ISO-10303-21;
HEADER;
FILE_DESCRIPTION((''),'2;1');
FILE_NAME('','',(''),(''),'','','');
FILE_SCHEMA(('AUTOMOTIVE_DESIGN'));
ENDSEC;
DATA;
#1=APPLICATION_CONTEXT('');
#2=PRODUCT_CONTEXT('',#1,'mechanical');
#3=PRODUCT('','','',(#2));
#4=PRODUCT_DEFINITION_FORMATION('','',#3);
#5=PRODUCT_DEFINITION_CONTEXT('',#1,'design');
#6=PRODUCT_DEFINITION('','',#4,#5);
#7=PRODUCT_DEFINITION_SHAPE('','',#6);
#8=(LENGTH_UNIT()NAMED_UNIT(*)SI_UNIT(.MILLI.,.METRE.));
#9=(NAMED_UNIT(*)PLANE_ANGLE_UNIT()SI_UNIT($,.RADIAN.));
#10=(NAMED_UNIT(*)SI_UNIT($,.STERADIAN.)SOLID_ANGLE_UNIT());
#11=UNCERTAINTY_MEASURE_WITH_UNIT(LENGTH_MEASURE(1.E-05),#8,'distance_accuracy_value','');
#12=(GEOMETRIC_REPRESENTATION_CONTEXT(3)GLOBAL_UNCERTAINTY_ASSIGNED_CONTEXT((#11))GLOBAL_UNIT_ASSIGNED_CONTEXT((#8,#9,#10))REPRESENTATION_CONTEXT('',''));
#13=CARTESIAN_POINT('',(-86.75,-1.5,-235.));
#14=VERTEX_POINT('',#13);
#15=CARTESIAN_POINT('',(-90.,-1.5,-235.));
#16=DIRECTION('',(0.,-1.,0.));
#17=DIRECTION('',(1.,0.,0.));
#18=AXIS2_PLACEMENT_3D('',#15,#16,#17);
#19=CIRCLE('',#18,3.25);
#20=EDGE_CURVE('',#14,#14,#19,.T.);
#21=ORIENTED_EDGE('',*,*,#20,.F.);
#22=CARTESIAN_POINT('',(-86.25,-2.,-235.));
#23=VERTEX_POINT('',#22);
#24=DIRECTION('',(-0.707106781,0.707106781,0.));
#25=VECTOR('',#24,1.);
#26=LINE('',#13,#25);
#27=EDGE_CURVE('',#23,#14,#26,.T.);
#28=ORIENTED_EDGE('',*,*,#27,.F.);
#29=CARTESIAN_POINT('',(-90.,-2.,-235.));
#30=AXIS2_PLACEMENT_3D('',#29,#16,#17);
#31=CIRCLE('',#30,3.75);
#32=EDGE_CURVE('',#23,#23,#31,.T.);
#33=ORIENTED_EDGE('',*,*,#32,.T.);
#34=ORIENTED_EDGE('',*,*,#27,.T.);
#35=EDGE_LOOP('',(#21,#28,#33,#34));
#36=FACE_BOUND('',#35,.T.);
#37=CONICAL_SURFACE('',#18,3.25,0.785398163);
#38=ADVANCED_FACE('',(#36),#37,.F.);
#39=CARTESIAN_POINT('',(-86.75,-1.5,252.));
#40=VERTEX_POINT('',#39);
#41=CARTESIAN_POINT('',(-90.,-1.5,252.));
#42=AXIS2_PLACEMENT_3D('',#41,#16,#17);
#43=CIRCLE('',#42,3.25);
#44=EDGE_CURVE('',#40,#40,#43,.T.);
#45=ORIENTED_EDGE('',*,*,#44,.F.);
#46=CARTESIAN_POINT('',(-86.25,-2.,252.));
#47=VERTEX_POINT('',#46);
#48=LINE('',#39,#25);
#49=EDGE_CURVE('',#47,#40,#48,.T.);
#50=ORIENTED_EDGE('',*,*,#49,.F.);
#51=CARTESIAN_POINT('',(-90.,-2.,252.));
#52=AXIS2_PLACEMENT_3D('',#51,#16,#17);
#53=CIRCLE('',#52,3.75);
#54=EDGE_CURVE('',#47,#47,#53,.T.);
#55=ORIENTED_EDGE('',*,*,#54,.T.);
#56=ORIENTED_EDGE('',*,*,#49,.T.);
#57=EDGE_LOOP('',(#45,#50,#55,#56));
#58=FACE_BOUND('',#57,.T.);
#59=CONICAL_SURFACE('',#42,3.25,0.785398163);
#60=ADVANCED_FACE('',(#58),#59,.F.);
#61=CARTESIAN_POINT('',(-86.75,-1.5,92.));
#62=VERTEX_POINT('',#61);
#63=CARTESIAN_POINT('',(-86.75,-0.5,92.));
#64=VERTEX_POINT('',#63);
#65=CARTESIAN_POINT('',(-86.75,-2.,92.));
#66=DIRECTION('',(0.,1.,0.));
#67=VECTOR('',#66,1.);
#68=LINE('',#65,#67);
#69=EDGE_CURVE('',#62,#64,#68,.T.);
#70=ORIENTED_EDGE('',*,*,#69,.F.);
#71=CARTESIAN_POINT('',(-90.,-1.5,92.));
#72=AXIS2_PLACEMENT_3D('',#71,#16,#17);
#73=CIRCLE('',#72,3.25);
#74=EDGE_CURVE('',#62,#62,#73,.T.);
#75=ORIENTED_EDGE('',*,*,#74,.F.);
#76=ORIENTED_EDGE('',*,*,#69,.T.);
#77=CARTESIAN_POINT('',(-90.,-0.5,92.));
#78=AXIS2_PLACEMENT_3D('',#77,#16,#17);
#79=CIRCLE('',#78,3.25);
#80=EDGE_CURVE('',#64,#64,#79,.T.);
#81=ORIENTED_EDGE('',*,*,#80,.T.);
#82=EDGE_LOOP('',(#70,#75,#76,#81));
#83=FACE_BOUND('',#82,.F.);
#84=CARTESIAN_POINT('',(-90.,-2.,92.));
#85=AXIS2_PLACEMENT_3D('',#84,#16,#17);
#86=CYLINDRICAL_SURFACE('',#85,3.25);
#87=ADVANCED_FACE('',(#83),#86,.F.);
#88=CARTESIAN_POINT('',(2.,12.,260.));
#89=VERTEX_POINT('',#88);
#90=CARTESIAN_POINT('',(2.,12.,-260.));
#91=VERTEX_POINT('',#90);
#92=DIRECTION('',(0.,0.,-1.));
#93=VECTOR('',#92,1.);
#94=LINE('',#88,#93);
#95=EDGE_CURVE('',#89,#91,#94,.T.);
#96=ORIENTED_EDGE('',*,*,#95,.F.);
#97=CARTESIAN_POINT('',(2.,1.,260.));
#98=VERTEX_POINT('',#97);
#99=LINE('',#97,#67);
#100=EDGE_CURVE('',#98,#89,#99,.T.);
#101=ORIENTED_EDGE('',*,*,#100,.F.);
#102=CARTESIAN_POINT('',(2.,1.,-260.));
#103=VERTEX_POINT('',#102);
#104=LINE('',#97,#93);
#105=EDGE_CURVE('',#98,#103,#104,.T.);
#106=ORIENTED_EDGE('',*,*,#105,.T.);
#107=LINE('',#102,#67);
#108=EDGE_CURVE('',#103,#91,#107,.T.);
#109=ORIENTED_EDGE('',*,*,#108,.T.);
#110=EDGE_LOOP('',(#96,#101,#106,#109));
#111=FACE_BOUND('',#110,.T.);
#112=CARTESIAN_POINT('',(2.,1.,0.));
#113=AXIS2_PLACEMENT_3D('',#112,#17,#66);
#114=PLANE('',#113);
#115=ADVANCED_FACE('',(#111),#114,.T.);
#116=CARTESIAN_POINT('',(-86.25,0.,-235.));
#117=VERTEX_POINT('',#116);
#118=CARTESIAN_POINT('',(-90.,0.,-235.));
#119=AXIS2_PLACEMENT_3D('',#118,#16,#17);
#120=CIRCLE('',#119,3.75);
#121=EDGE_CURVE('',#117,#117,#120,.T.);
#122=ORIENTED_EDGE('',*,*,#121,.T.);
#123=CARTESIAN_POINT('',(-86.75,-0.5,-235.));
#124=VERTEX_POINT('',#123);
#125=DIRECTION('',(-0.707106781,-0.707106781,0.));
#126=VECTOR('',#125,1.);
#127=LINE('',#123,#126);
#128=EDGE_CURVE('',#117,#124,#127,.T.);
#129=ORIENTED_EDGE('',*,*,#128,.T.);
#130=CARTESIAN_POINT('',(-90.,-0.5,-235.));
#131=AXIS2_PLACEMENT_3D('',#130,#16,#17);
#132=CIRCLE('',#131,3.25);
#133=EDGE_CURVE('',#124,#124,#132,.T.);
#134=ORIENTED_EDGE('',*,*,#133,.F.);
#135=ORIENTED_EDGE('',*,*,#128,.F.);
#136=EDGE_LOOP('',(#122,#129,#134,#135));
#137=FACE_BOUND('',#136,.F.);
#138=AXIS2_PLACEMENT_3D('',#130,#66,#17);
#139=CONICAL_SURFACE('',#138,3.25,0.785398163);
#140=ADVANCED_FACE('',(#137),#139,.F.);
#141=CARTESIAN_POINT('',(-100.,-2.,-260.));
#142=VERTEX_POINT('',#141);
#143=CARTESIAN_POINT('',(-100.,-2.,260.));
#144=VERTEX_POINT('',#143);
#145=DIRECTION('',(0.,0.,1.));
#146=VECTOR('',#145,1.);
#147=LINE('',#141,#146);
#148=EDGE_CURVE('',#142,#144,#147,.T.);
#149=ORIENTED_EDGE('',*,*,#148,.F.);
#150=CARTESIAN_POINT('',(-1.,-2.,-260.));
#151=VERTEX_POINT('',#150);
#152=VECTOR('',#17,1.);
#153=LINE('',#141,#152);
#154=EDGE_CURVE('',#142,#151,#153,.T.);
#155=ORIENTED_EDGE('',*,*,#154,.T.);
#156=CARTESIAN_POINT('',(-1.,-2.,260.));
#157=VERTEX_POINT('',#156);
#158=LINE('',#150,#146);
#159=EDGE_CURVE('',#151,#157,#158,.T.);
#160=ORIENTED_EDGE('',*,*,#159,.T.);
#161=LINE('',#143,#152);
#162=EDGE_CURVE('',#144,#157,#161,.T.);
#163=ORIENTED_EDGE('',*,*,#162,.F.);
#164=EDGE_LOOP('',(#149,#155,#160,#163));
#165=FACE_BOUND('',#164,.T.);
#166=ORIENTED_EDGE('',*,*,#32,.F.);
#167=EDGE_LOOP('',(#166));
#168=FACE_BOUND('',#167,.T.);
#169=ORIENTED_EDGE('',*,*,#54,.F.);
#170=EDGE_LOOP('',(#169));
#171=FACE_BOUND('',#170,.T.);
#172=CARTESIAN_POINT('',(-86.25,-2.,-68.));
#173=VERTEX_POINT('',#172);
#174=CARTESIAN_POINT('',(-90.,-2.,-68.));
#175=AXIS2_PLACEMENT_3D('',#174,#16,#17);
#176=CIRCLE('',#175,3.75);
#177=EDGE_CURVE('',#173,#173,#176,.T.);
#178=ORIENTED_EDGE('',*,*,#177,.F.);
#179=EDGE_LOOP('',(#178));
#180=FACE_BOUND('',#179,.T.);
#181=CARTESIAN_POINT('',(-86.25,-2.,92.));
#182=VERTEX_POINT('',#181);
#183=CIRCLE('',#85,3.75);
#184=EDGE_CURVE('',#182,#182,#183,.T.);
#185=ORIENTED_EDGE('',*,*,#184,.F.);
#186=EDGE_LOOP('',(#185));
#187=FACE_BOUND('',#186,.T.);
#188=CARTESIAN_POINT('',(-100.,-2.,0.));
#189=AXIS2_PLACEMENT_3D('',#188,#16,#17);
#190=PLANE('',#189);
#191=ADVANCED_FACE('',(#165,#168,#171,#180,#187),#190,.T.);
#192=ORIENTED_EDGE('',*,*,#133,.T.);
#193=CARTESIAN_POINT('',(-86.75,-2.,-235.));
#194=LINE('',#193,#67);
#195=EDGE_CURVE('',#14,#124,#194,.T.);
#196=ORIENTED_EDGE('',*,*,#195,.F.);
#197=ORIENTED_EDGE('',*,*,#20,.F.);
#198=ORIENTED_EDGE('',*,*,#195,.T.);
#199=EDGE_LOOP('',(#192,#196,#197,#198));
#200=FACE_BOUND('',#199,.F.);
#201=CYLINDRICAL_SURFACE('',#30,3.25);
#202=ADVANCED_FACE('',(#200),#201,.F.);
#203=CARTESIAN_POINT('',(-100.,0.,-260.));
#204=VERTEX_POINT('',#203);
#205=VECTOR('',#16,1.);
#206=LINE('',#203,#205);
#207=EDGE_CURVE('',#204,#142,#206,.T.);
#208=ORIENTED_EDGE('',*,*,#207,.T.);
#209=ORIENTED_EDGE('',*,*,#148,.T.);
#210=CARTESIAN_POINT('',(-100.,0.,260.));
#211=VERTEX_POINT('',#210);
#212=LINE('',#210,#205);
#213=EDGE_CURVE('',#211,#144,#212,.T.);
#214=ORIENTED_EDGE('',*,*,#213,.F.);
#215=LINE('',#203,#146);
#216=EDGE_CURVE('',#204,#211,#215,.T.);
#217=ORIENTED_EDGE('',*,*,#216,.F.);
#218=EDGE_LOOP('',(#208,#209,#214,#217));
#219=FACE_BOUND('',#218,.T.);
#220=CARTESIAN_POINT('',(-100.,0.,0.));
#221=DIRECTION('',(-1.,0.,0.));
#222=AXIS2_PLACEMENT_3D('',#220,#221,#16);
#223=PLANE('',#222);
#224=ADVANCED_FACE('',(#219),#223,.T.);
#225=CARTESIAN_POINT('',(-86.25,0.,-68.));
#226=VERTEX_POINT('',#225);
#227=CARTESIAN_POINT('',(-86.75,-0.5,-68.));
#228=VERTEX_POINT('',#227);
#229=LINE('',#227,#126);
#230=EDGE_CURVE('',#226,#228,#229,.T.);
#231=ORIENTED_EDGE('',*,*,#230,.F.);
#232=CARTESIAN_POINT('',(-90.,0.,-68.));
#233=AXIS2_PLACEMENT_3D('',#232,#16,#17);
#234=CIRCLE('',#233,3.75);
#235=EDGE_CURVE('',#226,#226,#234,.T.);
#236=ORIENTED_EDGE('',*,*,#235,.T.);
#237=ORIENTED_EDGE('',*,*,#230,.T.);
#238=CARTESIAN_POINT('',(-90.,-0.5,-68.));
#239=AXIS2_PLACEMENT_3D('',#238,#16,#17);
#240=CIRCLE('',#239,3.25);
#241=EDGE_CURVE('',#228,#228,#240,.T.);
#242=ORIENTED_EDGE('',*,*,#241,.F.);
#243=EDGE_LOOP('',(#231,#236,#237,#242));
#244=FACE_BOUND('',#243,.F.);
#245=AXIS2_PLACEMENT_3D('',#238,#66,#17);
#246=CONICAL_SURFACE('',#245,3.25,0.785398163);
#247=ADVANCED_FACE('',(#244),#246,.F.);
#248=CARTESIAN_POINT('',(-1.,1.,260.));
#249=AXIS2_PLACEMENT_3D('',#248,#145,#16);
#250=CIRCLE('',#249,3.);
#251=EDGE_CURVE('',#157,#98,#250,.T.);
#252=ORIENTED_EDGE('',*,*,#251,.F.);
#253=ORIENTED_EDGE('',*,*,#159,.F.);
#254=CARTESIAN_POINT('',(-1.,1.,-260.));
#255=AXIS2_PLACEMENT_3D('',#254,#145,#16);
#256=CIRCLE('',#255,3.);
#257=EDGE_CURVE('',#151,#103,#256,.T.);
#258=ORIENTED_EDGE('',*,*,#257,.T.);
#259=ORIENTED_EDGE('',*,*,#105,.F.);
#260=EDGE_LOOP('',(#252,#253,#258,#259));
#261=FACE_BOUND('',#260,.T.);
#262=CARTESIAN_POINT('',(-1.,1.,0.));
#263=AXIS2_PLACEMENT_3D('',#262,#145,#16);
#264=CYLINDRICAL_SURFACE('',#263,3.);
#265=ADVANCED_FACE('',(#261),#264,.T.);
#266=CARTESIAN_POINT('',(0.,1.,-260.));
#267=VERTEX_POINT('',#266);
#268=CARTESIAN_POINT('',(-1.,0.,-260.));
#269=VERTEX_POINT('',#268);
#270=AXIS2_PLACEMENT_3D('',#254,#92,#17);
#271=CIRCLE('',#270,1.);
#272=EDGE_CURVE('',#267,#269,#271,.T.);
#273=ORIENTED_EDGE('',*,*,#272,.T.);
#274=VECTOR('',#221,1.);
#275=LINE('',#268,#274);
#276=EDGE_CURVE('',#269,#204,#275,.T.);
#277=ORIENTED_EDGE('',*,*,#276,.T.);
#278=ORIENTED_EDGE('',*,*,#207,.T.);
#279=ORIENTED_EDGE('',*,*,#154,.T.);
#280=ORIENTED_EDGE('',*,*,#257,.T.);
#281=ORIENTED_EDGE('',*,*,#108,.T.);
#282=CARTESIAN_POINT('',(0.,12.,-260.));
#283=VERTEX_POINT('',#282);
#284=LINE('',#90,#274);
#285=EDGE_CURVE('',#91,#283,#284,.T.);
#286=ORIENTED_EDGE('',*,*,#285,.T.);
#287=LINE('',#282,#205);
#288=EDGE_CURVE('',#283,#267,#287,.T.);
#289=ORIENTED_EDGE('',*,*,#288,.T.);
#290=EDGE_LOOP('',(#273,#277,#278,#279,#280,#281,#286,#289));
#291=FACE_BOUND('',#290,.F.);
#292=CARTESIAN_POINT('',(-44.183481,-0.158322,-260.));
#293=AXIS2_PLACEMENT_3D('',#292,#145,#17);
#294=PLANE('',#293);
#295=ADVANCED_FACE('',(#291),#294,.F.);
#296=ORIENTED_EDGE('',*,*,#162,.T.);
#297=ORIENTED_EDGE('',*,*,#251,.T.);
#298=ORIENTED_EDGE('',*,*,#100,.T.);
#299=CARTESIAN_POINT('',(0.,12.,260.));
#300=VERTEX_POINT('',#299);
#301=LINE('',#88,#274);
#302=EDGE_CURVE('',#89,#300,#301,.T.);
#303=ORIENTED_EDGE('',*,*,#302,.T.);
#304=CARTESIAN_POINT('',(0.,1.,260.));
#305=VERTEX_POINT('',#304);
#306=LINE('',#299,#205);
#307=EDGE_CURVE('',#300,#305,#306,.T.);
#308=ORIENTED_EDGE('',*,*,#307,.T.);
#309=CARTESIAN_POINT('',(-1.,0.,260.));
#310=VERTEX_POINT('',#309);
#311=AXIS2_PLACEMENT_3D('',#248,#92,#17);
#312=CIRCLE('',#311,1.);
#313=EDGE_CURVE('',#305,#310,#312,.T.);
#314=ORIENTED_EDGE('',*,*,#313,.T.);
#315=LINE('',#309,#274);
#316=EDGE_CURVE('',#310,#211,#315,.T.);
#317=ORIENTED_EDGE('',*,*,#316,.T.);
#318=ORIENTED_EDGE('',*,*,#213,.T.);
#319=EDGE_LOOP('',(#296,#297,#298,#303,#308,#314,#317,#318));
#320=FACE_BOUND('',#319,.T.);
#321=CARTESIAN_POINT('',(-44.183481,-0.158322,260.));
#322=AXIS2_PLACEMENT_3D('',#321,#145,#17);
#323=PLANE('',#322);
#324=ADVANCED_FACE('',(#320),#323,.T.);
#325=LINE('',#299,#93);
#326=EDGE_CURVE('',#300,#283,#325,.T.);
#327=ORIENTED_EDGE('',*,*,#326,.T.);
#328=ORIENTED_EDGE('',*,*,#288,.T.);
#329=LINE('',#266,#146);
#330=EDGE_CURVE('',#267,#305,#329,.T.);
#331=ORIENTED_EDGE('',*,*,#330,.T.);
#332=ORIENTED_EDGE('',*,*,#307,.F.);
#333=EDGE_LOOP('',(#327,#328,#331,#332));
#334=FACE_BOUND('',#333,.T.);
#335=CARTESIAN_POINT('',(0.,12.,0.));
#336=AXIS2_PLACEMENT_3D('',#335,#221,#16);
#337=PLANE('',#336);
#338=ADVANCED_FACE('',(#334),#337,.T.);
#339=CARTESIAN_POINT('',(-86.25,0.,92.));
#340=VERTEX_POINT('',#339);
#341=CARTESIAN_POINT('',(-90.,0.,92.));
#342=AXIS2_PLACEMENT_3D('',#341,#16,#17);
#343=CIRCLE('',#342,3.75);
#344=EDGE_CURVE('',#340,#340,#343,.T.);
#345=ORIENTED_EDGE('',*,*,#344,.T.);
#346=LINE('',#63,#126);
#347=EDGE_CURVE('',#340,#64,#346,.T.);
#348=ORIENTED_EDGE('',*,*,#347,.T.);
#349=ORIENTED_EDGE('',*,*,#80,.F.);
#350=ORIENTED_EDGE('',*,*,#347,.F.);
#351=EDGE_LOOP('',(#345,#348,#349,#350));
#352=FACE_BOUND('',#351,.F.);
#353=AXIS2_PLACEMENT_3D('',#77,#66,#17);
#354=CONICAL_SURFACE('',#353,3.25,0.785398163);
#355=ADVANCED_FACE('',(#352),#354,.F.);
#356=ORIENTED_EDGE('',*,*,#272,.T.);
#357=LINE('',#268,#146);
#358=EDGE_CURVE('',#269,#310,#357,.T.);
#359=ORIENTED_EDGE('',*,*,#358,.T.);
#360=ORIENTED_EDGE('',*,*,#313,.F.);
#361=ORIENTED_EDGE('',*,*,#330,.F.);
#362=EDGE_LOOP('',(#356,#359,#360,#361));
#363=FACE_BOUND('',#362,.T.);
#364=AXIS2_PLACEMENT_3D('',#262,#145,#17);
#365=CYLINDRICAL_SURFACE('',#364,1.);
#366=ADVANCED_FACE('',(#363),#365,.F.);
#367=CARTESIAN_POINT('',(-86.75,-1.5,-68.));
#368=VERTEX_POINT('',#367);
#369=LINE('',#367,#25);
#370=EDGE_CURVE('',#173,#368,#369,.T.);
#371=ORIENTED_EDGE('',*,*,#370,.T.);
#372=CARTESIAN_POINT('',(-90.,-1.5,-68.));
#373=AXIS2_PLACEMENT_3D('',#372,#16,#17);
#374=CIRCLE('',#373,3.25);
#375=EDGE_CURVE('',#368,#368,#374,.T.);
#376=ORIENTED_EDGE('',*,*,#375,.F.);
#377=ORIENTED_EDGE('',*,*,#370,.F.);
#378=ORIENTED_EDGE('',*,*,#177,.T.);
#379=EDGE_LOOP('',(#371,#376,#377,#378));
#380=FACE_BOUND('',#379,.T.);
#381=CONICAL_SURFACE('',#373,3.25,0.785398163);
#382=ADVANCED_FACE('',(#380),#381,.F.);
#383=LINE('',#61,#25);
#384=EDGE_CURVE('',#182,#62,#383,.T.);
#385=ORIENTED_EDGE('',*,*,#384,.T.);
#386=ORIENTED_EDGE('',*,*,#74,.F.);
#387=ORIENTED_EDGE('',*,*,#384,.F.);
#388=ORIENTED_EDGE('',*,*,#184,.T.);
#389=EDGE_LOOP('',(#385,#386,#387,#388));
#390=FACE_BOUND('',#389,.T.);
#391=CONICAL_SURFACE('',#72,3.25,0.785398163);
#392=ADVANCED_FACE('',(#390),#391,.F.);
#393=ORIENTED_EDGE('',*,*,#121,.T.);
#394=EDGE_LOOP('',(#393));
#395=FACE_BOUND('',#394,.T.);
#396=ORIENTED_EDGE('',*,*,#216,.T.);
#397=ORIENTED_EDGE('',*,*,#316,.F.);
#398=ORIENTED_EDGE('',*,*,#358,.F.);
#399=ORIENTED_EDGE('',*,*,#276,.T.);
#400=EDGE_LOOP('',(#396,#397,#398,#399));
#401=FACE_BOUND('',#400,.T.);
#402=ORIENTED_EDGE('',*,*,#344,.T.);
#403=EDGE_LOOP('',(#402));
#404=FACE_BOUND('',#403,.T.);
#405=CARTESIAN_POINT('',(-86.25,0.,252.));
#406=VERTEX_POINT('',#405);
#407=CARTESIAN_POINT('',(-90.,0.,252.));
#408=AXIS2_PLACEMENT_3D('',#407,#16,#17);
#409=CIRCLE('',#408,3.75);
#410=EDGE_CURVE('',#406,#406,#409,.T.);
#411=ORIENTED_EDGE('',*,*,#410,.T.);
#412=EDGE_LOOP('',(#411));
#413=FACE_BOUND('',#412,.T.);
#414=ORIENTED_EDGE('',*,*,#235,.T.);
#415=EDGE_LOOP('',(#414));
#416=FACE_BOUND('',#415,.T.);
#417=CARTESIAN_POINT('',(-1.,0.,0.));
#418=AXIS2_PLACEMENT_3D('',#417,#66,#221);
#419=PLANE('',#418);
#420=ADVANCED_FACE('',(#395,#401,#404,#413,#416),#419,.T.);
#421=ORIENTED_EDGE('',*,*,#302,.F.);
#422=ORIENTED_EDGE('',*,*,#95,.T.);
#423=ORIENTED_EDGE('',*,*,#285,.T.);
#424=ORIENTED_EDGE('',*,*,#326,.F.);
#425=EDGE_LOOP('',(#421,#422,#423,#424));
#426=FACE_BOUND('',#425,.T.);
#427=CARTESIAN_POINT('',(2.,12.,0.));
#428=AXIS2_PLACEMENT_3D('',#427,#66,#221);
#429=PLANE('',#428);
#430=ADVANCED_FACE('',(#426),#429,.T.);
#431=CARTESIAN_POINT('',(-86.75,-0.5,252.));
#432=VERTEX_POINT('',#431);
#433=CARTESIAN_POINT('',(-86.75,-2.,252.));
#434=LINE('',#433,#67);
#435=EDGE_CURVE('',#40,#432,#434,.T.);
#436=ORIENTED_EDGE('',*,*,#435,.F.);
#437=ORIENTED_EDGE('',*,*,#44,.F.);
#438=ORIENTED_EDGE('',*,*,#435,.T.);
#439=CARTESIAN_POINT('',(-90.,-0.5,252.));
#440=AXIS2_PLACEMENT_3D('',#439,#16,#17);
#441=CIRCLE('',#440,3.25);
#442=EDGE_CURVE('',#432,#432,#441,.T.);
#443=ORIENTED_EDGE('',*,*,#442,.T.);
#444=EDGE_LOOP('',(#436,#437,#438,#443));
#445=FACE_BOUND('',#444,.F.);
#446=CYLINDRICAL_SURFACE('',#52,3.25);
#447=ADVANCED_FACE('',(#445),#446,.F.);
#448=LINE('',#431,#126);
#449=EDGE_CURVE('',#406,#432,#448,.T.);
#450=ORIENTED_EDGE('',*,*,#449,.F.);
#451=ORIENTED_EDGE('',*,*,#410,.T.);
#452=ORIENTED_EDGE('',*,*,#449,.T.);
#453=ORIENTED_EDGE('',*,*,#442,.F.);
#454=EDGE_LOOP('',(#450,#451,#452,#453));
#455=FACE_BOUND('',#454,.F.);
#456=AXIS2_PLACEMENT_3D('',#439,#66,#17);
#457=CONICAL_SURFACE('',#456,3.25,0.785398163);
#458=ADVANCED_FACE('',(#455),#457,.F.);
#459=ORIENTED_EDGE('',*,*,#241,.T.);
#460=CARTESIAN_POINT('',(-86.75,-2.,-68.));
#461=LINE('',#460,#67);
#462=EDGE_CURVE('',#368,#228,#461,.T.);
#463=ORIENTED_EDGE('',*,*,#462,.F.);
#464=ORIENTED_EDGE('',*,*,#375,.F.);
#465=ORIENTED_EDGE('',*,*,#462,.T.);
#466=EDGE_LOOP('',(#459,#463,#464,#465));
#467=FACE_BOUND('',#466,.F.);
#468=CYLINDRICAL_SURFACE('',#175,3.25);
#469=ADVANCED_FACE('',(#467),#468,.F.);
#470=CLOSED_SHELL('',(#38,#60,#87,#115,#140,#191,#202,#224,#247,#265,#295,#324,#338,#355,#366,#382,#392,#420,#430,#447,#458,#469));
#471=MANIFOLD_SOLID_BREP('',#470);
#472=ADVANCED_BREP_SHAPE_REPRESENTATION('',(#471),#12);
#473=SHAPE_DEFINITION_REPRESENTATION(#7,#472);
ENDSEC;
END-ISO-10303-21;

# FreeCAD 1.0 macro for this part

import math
import FreeCAD as App
import Part
import Sketcher

V = App.Vector
Q = App.Units.Quantity


def edges_at(feature, points):
    """Names of the edges that pass closest to the given points."""
    edges = feature.Shape.Edges
    near = lambda p: min(range(len(edges)), key=lambda i: edges[i].distToShape(Part.Vertex(*p))[0])
    return sorted({f"Edge{near(p) + 1}" for p in points})

doc = App.newDocument("Part")
body = doc.addObject("PartDesign::Body", "Body")

# Sketch on XY plane
sketch1 = body.newObject("Sketcher::SketchObject", "Sketch")
sketch1.AttachmentSupport = (doc.getObject("XY_Plane"), [""])
sketch1.MapMode = "FlatFace"
sketch1.addGeometry([
    Part.LineSegment(V(0, 12, 0), V(0, 1, 0)),  # 0
    Part.ArcOfCircle(Part.Circle(V(-1, 1, 0), V(0, 0, 1), 1), math.radians(-90), math.radians(0)),  # 1
    Part.LineSegment(V(-1, 0, 0), V(-100, 0, 0)),  # 2
    Part.LineSegment(V(-100, 0, 0), V(-100, -2, 0)),  # 3
    Part.LineSegment(V(-100, -2, 0), V(-1, -2, 0)),  # 4
    Part.ArcOfCircle(Part.Circle(V(-1, 1, 0), V(0, 0, 1), 3), math.radians(-90), math.radians(0)),  # 5
    Part.LineSegment(V(2, 1, 0), V(2, 12, 0)),  # 6
    Part.LineSegment(V(2, 12, 0), V(0, 12, 0)),  # 7
], False)
sketch1.addConstraint([
    Sketcher.Constraint("Tangent", 0, 2, 1, 2),
    Sketcher.Constraint("Tangent", 1, 1, 2, 1),
    Sketcher.Constraint("Coincident", 2, 2, 3, 1),
    Sketcher.Constraint("Coincident", 3, 2, 4, 1),
    Sketcher.Constraint("Tangent", 4, 2, 5, 1),
    Sketcher.Constraint("Tangent", 5, 2, 6, 1),
    Sketcher.Constraint("Coincident", 6, 2, 7, 1),
    Sketcher.Constraint("Coincident", 7, 2, 0, 1),
    Sketcher.Constraint("Vertical", 0),
    Sketcher.Constraint("Horizontal", 2),
    Sketcher.Constraint("Vertical", 3),
    Sketcher.Constraint("Horizontal", 4),
    Sketcher.Constraint("Vertical", 6),
    Sketcher.Constraint("Horizontal", 7),
    Sketcher.Constraint("Coincident", 5, 3, 1, 3),
    Sketcher.Constraint("PointOnObject", 0, 2, -2),
    Sketcher.Constraint("PointOnObject", 1, 1, -1),
    Sketcher.Constraint("Radius", 1, Q("1 mm")),
    Sketcher.Constraint("Radius", 5, Q("3 mm")),
    Sketcher.Constraint("DistanceX", 2, 2, 2, 1, Q("99 mm")),
    Sketcher.Constraint("DistanceY", 0, 2, 0, 1, Q("11 mm")),
])
pad1 = body.newObject("PartDesign::Pad", "Pad")
pad1.Profile = sketch1
pad1.Length = 520
pad1.Midplane = True

# Sketch on XZ plane
sketch2 = body.newObject("Sketcher::SketchObject", "Sketch001")
sketch2.AttachmentSupport = (doc.getObject("XZ_Plane"), [""])
sketch2.MapMode = "FlatFace"
sketch2.AttachmentOffset = App.Placement(V(0, 0, 2), App.Rotation())
sketch2.addGeometry([
    Part.Circle(V(-90, 252, 0), V(0, 0, 1), 3.25),
    Part.Circle(V(-90, -235, 0), V(0, 0, 1), 3.25),
    Part.Circle(V(-90, 92, 0), V(0, 0, 1), 3.25),
    Part.Circle(V(-90, -68, 0), V(0, 0, 1), 3.25),
], False)
sketch2.addConstraint([
    Sketcher.Constraint("Equal", 0, 1),
    Sketcher.Constraint("Equal", 1, 2),
    Sketcher.Constraint("Equal", 2, 3),
    Sketcher.Constraint("Vertical", 0, 3, 1, 3),
    Sketcher.Constraint("Vertical", 1, 3, 2, 3),
    Sketcher.Constraint("Vertical", 2, 3, 3, 3),
    Sketcher.Constraint("Diameter", 0, Q("6.5 mm")),
    Sketcher.Constraint("DistanceX", 0, 3, -1, 1, Q("90 mm")),
    Sketcher.Constraint("DistanceY", -1, 1, 0, 3, Q("252 mm")),
    Sketcher.Constraint("DistanceY", 1, 3, -1, 1, Q("235 mm")),
    Sketcher.Constraint("DistanceY", -1, 1, 2, 3, Q("92 mm")),
    Sketcher.Constraint("DistanceY", 3, 3, -1, 1, Q("68 mm")),
])
pocket1 = body.newObject("PartDesign::Pocket", "Pocket")
pocket1.Profile = sketch2
pocket1.Length = 25
doc.recompute()

chamfer = body.newObject("PartDesign::Chamfer", "Chamfer")
chamfer.Base = (pocket1, edges_at(pocket1, [
    (-93.25, -2, 252),
    (-86.75, -1, 252),
    (-93.25, 0, 252),
    (-93.25, -2, 92),
    (-86.75, -1, 92),
    (-93.25, 0, 92),
    (-93.25, -2, -68),
    (-86.75, -1, -68),
    (-93.25, 0, -68),
    (-93.25, -2, -235),
    (-86.75, -1, -235),
    (-93.25, 0, -235),
]))
chamfer.Size = 0.5

doc.recompute()
